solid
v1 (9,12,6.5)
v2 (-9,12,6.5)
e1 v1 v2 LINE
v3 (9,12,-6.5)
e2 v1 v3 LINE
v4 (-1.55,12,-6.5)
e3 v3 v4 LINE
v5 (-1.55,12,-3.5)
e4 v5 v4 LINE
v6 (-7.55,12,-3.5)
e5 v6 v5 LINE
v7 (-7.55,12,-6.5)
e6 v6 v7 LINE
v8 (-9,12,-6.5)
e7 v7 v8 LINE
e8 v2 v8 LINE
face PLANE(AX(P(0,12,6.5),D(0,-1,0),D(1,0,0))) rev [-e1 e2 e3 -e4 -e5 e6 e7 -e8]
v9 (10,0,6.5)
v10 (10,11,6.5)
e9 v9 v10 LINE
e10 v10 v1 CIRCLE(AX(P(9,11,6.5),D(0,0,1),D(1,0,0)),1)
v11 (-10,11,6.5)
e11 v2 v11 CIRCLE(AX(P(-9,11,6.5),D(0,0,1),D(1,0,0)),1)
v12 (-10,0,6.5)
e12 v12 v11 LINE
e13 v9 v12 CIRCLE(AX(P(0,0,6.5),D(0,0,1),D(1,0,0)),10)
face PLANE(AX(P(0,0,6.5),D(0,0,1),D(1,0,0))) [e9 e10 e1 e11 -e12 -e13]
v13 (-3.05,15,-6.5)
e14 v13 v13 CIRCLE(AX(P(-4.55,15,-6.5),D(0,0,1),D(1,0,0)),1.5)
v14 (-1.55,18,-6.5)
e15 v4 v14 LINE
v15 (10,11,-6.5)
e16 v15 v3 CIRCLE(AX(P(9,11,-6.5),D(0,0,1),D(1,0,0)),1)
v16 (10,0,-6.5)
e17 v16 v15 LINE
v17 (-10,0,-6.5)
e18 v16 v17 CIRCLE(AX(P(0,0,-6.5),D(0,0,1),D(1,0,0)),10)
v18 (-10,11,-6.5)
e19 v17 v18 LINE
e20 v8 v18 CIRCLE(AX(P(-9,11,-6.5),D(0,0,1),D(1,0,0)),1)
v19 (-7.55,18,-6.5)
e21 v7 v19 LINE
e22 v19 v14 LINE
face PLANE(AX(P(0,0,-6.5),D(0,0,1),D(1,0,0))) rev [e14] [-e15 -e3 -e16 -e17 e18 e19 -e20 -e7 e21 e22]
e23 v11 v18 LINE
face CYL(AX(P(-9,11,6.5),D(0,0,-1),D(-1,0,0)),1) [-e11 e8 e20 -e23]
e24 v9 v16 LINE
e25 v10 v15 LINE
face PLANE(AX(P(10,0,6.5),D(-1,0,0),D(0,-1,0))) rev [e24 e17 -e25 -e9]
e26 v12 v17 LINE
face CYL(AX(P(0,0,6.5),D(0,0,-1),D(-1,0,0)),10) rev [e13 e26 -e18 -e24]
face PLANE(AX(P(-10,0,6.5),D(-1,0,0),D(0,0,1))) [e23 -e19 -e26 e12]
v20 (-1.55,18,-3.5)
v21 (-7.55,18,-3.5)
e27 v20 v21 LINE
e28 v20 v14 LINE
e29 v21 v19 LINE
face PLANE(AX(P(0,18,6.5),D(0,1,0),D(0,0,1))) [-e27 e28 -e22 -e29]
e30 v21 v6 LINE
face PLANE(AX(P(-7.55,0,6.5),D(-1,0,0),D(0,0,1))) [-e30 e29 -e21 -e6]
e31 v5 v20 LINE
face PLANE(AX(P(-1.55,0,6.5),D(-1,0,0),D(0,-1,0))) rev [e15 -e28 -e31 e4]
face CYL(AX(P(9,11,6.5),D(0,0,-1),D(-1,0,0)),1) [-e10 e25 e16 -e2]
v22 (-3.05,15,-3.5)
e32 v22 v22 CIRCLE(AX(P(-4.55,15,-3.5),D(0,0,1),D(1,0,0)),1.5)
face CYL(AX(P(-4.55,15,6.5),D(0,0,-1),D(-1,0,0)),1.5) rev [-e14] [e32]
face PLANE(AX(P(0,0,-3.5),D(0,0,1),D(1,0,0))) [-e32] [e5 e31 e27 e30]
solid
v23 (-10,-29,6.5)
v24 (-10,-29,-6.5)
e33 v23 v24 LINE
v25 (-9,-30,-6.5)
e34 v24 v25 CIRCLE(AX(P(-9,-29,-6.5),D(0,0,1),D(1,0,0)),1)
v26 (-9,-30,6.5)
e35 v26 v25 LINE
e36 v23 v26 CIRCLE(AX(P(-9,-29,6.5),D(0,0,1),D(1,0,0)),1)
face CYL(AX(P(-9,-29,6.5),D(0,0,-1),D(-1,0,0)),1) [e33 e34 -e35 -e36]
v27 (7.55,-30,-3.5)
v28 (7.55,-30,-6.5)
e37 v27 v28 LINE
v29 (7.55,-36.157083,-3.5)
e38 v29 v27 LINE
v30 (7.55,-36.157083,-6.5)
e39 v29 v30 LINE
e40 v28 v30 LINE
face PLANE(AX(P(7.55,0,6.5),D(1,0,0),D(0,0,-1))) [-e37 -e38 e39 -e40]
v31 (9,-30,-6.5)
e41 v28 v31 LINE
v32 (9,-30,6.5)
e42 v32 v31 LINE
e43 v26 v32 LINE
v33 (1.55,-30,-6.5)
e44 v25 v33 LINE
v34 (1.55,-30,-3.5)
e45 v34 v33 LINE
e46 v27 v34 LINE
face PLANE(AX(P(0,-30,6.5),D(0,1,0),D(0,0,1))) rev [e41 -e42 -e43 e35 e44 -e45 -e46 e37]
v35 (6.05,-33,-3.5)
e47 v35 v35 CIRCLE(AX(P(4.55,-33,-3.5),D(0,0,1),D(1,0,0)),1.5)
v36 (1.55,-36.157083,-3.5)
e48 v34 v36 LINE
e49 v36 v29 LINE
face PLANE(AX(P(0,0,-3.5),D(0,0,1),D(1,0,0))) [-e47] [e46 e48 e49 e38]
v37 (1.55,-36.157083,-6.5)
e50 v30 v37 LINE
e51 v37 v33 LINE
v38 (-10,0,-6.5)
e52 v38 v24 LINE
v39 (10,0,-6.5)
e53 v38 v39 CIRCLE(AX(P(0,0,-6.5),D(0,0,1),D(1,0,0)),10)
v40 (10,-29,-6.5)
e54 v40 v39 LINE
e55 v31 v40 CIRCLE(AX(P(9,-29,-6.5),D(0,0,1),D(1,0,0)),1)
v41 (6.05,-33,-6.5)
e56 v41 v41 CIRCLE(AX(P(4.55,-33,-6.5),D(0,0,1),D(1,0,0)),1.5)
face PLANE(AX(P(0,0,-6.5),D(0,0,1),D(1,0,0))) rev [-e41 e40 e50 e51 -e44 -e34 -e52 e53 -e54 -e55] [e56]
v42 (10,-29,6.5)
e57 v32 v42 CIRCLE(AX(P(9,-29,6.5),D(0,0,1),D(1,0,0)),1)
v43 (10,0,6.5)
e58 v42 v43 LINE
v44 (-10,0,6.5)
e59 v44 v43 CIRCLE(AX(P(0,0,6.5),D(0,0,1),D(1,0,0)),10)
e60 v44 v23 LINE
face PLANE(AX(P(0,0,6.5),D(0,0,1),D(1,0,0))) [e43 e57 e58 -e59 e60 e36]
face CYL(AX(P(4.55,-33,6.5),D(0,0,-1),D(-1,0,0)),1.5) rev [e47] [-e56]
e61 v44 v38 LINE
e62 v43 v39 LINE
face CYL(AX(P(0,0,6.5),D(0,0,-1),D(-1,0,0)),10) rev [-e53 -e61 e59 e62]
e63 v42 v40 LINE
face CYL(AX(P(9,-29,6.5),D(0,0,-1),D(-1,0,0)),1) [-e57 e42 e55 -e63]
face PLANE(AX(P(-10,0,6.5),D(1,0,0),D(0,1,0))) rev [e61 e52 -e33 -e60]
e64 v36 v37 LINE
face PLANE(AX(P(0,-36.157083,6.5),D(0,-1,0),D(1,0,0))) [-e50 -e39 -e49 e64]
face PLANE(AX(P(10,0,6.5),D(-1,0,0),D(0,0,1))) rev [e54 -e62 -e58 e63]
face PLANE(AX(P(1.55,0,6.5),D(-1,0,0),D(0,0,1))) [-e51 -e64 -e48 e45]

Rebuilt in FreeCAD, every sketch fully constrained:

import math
import FreeCAD as App
import Part
import Sketcher

doc = App.newDocument("Part")
body = doc.addObject("PartDesign::Body", "Body")

sketch1 = doc.addObject("Sketcher::SketchObject", "Sketch")
body.addObject(sketch1)
sketch1.AttachmentSupport = (doc.XY_Plane, [""])
sketch1.MapMode = "FlatFace"
sketch1.addGeometry([
    Part.ArcOfCircle(Part.Circle(App.Vector(0, 0, 0), App.Vector(0, 0, 1), 10), math.radians(180), math.radians(360)),
    Part.LineSegment(App.Vector(-10, 0, 0), App.Vector(-10, -29, 0)),
    Part.ArcOfCircle(Part.Circle(App.Vector(-9, -29, 0), App.Vector(0, 0, 1), 1), math.radians(-180), math.radians(-90)),
    Part.LineSegment(App.Vector(-9, -30, 0), App.Vector(1.55, -30, 0)),
    Part.LineSegment(App.Vector(1.55, -30, 0), App.Vector(1.55, -36.157083, 0)),
    Part.LineSegment(App.Vector(1.55, -36.157083, 0), App.Vector(7.55, -36.157083, 0)),
    Part.LineSegment(App.Vector(7.55, -36.157083, 0), App.Vector(7.55, -30, 0)),
    Part.LineSegment(App.Vector(7.55, -30, 0), App.Vector(9, -30, 0)),
    Part.ArcOfCircle(Part.Circle(App.Vector(9, -29, 0), App.Vector(0, 0, 1), 1), math.radians(-90), math.radians(0)),
    Part.LineSegment(App.Vector(10, -29, 0), App.Vector(10, 0, 0)),
    Part.Circle(App.Vector(4.55, -33, 0), App.Vector(0, 0, 1), 1.5),
], False)
sketch1.addConstraint([
    Sketcher.Constraint("Tangent", 0, 1, 1, 1),
    Sketcher.Constraint("Tangent", 1, 2, 2, 1),
    Sketcher.Constraint("Tangent", 2, 2, 3, 1),
    Sketcher.Constraint("Coincident", 3, 2, 4, 1),
    Sketcher.Constraint("Coincident", 4, 2, 5, 1),
    Sketcher.Constraint("Coincident", 5, 2, 6, 1),
    Sketcher.Constraint("Coincident", 6, 2, 7, 1),
    Sketcher.Constraint("Tangent", 7, 2, 8, 1),
    Sketcher.Constraint("Tangent", 8, 2, 9, 1),
    Sketcher.Constraint("Tangent", 9, 2, 0, 2),
    Sketcher.Constraint("Vertical", 1),
    Sketcher.Constraint("Horizontal", 3),
    Sketcher.Constraint("Vertical", 4),
    Sketcher.Constraint("Horizontal", 5),
    Sketcher.Constraint("Vertical", 6),
    Sketcher.Constraint("Horizontal", 7),
    Sketcher.Constraint("Vertical", 9),
    Sketcher.Constraint("Coincident", 0, 3, -1, 1),
    Sketcher.Constraint("Equal", 2, 8),
    Sketcher.Constraint("Horizontal", 2, 3, 8, 3),
    Sketcher.Constraint("Diameter", 10, 3.0),
    Sketcher.Constraint("Radius", 0, 10.0),
    Sketcher.Constraint("Radius", 2, 1.0),
    Sketcher.Constraint("DistanceX", 5, 1, 5, 2, 6.0),
    Sketcher.Constraint("DistanceY", 1, 2, 1, 1, 29.0),
    Sketcher.Constraint("DistanceY", 10, 3, -1, 1, 33.0),
    Sketcher.Constraint("DistanceX", 3, 2, 10, 3, 3.0),
    Sketcher.Constraint("DistanceX", 3, 1, 3, 2, 10.55),
    Sketcher.Constraint("DistanceY", 4, 2, 4, 1, 6.157083),
])
pad1 = doc.addObject("PartDesign::Pad", "Pad")
body.addObject(pad1)
pad1.Profile = sketch1
pad1.Length = 13
pad1.Midplane = True

sketch2 = doc.addObject("Sketcher::SketchObject", "Sketch001")
body.addObject(sketch2)
sketch2.AttachmentSupport = (doc.XY_Plane, [""])
sketch2.MapMode = "FlatFace"
sketch2.AttachmentOffset = App.Placement(App.Vector(0, 0, 6.5), App.Rotation())
sketch2.addGeometry([
    Part.LineSegment(App.Vector(1.55, -30, 0), App.Vector(1.55, -36.157083, 0)),
    Part.LineSegment(App.Vector(1.55, -36.157083, 0), App.Vector(7.55, -36.157083, 0)),
    Part.LineSegment(App.Vector(7.55, -36.157083, 0), App.Vector(7.55, -30, 0)),
    Part.LineSegment(App.Vector(7.55, -30, 0), App.Vector(1.55, -30, 0)),
], False)
sketch2.addConstraint([
    Sketcher.Constraint("Coincident", 0, 2, 1, 1),
    Sketcher.Constraint("Coincident", 1, 2, 2, 1),
    Sketcher.Constraint("Coincident", 2, 2, 3, 1),
    Sketcher.Constraint("Coincident", 3, 2, 0, 1),
    Sketcher.Constraint("Vertical", 0),
    Sketcher.Constraint("Horizontal", 1),
    Sketcher.Constraint("Vertical", 2),
    Sketcher.Constraint("Horizontal", 3),
    Sketcher.Constraint("DistanceX", 1, 1, 1, 2, 6.0),
    Sketcher.Constraint("DistanceY", 2, 2, -1, 1, 30.0),
    Sketcher.Constraint("DistanceX", -1, 1, 0, 2, 1.55),
    Sketcher.Constraint("DistanceY", 0, 2, 0, 1, 6.157083),
])
pocket1 = doc.addObject("PartDesign::Pocket", "Pocket")
body.addObject(pocket1)
pocket1.Profile = sketch2
pocket1.Length = 10
body2 = doc.addObject("PartDesign::Body", "Body001")

sketch3 = doc.addObject("Sketcher::SketchObject", "Sketch002")
body2.addObject(sketch3)
sketch3.AttachmentSupport = (doc.getObject("XY_Plane001"), [""])
sketch3.MapMode = "FlatFace"
sketch3.addGeometry([
    Part.LineSegment(App.Vector(-10, 11, 0), App.Vector(-10, 0, 0)),
    Part.ArcOfCircle(Part.Circle(App.Vector(0, 0, 0), App.Vector(0, 0, 1), 10), math.radians(0), math.radians(180)),
    Part.LineSegment(App.Vector(10, 0, 0), App.Vector(10, 11, 0)),
    Part.ArcOfCircle(Part.Circle(App.Vector(9, 11, 0), App.Vector(0, 0, 1), 1), math.radians(0), math.radians(90)),
    Part.LineSegment(App.Vector(9, 12, 0), App.Vector(-1.55, 12, 0)),
    Part.LineSegment(App.Vector(-1.55, 12, 0), App.Vector(-1.55, 18, 0)),
    Part.LineSegment(App.Vector(-1.55, 18, 0), App.Vector(-7.55, 18, 0)),
    Part.LineSegment(App.Vector(-7.55, 18, 0), App.Vector(-7.55, 12, 0)),
    Part.LineSegment(App.Vector(-7.55, 12, 0), App.Vector(-9, 12, 0)),
    Part.ArcOfCircle(Part.Circle(App.Vector(-9, 11, 0), App.Vector(0, 0, 1), 1), math.radians(90), math.radians(180)),
    Part.Circle(App.Vector(-4.55, 15, 0), App.Vector(0, 0, 1), 1.5),
], False)
sketch3.addConstraint([
    Sketcher.Constraint("Tangent", 0, 2, 1, 2),
    Sketcher.Constraint("Tangent", 1, 1, 2, 1),
    Sketcher.Constraint("Tangent", 2, 2, 3, 1),
    Sketcher.Constraint("Tangent", 3, 2, 4, 1),
    Sketcher.Constraint("Coincident", 4, 2, 5, 1),
    Sketcher.Constraint("Coincident", 5, 2, 6, 1),
    Sketcher.Constraint("Coincident", 6, 2, 7, 1),
    Sketcher.Constraint("Coincident", 7, 2, 8, 1),
    Sketcher.Constraint("Tangent", 8, 2, 9, 1),
    Sketcher.Constraint("Tangent", 9, 2, 0, 1),
    Sketcher.Constraint("Vertical", 0),
    Sketcher.Constraint("Vertical", 2),
    Sketcher.Constraint("Horizontal", 4),
    Sketcher.Constraint("Vertical", 5),
    Sketcher.Constraint("Horizontal", 6),
    Sketcher.Constraint("Vertical", 7),
    Sketcher.Constraint("Horizontal", 8),
    Sketcher.Constraint("Coincident", 1, 3, -1, 1),
    Sketcher.Constraint("Equal", 3, 9),
    Sketcher.Constraint("Horizontal", 3, 3, 9, 3),
    Sketcher.Constraint("Equal", 6, 5),
    Sketcher.Constraint("Diameter", 10, 3.0),
    Sketcher.Constraint("Radius", 1, 10.0),
    Sketcher.Constraint("Radius", 3, 1.0),
    Sketcher.Constraint("DistanceX", 6, 2, 6, 1, 6.0),
    Sketcher.Constraint("DistanceY", 0, 2, 0, 1, 11.0),
    Sketcher.Constraint("DistanceY", -1, 1, 10, 3, 15.0),
    Sketcher.Constraint("DistanceX", 10, 3, 4, 2, 3.0),
    Sketcher.Constraint("DistanceX", 4, 2, 4, 1, 10.55),
])
pad2 = doc.addObject("PartDesign::Pad", "Pad001")
body2.addObject(pad2)
pad2.Profile = sketch3
pad2.Length = 13
pad2.Midplane = True

sketch4 = doc.addObject("Sketcher::SketchObject", "Sketch003")
body2.addObject(sketch4)
sketch4.AttachmentSupport = (doc.getObject("XY_Plane001"), [""])
sketch4.MapMode = "FlatFace"
sketch4.AttachmentOffset = App.Placement(App.Vector(0, 0, 6.5), App.Rotation())
sketch4.addGeometry([
    Part.LineSegment(App.Vector(-7.55, 18, 0), App.Vector(-7.55, 12, 0)),
    Part.LineSegment(App.Vector(-7.55, 12, 0), App.Vector(-1.55, 12, 0)),
    Part.LineSegment(App.Vector(-1.55, 12, 0), App.Vector(-1.55, 18, 0)),
    Part.LineSegment(App.Vector(-1.55, 18, 0), App.Vector(-7.55, 18, 0)),
], False)
sketch4.addConstraint([
    Sketcher.Constraint("Coincident", 0, 2, 1, 1),
    Sketcher.Constraint("Coincident", 1, 2, 2, 1),
    Sketcher.Constraint("Coincident", 2, 2, 3, 1),
    Sketcher.Constraint("Coincident", 3, 2, 0, 1),
    Sketcher.Constraint("Vertical", 0),
    Sketcher.Constraint("Horizontal", 1),
    Sketcher.Constraint("Vertical", 2),
    Sketcher.Constraint("Horizontal", 3),
    Sketcher.Constraint("Equal", 3, 0),
    Sketcher.Constraint("DistanceX", 1, 1, 1, 2, 6.0),
    Sketcher.Constraint("DistanceY", -1, 1, 0, 2, 12.0),
    Sketcher.Constraint("DistanceX", 0, 2, -1, 1, 7.55),
])
pocket2 = doc.addObject("PartDesign::Pocket", "Pocket001")
body2.addObject(pocket2)
pocket2.Profile = sketch4
pocket2.Length = 10

doc.recompute()
